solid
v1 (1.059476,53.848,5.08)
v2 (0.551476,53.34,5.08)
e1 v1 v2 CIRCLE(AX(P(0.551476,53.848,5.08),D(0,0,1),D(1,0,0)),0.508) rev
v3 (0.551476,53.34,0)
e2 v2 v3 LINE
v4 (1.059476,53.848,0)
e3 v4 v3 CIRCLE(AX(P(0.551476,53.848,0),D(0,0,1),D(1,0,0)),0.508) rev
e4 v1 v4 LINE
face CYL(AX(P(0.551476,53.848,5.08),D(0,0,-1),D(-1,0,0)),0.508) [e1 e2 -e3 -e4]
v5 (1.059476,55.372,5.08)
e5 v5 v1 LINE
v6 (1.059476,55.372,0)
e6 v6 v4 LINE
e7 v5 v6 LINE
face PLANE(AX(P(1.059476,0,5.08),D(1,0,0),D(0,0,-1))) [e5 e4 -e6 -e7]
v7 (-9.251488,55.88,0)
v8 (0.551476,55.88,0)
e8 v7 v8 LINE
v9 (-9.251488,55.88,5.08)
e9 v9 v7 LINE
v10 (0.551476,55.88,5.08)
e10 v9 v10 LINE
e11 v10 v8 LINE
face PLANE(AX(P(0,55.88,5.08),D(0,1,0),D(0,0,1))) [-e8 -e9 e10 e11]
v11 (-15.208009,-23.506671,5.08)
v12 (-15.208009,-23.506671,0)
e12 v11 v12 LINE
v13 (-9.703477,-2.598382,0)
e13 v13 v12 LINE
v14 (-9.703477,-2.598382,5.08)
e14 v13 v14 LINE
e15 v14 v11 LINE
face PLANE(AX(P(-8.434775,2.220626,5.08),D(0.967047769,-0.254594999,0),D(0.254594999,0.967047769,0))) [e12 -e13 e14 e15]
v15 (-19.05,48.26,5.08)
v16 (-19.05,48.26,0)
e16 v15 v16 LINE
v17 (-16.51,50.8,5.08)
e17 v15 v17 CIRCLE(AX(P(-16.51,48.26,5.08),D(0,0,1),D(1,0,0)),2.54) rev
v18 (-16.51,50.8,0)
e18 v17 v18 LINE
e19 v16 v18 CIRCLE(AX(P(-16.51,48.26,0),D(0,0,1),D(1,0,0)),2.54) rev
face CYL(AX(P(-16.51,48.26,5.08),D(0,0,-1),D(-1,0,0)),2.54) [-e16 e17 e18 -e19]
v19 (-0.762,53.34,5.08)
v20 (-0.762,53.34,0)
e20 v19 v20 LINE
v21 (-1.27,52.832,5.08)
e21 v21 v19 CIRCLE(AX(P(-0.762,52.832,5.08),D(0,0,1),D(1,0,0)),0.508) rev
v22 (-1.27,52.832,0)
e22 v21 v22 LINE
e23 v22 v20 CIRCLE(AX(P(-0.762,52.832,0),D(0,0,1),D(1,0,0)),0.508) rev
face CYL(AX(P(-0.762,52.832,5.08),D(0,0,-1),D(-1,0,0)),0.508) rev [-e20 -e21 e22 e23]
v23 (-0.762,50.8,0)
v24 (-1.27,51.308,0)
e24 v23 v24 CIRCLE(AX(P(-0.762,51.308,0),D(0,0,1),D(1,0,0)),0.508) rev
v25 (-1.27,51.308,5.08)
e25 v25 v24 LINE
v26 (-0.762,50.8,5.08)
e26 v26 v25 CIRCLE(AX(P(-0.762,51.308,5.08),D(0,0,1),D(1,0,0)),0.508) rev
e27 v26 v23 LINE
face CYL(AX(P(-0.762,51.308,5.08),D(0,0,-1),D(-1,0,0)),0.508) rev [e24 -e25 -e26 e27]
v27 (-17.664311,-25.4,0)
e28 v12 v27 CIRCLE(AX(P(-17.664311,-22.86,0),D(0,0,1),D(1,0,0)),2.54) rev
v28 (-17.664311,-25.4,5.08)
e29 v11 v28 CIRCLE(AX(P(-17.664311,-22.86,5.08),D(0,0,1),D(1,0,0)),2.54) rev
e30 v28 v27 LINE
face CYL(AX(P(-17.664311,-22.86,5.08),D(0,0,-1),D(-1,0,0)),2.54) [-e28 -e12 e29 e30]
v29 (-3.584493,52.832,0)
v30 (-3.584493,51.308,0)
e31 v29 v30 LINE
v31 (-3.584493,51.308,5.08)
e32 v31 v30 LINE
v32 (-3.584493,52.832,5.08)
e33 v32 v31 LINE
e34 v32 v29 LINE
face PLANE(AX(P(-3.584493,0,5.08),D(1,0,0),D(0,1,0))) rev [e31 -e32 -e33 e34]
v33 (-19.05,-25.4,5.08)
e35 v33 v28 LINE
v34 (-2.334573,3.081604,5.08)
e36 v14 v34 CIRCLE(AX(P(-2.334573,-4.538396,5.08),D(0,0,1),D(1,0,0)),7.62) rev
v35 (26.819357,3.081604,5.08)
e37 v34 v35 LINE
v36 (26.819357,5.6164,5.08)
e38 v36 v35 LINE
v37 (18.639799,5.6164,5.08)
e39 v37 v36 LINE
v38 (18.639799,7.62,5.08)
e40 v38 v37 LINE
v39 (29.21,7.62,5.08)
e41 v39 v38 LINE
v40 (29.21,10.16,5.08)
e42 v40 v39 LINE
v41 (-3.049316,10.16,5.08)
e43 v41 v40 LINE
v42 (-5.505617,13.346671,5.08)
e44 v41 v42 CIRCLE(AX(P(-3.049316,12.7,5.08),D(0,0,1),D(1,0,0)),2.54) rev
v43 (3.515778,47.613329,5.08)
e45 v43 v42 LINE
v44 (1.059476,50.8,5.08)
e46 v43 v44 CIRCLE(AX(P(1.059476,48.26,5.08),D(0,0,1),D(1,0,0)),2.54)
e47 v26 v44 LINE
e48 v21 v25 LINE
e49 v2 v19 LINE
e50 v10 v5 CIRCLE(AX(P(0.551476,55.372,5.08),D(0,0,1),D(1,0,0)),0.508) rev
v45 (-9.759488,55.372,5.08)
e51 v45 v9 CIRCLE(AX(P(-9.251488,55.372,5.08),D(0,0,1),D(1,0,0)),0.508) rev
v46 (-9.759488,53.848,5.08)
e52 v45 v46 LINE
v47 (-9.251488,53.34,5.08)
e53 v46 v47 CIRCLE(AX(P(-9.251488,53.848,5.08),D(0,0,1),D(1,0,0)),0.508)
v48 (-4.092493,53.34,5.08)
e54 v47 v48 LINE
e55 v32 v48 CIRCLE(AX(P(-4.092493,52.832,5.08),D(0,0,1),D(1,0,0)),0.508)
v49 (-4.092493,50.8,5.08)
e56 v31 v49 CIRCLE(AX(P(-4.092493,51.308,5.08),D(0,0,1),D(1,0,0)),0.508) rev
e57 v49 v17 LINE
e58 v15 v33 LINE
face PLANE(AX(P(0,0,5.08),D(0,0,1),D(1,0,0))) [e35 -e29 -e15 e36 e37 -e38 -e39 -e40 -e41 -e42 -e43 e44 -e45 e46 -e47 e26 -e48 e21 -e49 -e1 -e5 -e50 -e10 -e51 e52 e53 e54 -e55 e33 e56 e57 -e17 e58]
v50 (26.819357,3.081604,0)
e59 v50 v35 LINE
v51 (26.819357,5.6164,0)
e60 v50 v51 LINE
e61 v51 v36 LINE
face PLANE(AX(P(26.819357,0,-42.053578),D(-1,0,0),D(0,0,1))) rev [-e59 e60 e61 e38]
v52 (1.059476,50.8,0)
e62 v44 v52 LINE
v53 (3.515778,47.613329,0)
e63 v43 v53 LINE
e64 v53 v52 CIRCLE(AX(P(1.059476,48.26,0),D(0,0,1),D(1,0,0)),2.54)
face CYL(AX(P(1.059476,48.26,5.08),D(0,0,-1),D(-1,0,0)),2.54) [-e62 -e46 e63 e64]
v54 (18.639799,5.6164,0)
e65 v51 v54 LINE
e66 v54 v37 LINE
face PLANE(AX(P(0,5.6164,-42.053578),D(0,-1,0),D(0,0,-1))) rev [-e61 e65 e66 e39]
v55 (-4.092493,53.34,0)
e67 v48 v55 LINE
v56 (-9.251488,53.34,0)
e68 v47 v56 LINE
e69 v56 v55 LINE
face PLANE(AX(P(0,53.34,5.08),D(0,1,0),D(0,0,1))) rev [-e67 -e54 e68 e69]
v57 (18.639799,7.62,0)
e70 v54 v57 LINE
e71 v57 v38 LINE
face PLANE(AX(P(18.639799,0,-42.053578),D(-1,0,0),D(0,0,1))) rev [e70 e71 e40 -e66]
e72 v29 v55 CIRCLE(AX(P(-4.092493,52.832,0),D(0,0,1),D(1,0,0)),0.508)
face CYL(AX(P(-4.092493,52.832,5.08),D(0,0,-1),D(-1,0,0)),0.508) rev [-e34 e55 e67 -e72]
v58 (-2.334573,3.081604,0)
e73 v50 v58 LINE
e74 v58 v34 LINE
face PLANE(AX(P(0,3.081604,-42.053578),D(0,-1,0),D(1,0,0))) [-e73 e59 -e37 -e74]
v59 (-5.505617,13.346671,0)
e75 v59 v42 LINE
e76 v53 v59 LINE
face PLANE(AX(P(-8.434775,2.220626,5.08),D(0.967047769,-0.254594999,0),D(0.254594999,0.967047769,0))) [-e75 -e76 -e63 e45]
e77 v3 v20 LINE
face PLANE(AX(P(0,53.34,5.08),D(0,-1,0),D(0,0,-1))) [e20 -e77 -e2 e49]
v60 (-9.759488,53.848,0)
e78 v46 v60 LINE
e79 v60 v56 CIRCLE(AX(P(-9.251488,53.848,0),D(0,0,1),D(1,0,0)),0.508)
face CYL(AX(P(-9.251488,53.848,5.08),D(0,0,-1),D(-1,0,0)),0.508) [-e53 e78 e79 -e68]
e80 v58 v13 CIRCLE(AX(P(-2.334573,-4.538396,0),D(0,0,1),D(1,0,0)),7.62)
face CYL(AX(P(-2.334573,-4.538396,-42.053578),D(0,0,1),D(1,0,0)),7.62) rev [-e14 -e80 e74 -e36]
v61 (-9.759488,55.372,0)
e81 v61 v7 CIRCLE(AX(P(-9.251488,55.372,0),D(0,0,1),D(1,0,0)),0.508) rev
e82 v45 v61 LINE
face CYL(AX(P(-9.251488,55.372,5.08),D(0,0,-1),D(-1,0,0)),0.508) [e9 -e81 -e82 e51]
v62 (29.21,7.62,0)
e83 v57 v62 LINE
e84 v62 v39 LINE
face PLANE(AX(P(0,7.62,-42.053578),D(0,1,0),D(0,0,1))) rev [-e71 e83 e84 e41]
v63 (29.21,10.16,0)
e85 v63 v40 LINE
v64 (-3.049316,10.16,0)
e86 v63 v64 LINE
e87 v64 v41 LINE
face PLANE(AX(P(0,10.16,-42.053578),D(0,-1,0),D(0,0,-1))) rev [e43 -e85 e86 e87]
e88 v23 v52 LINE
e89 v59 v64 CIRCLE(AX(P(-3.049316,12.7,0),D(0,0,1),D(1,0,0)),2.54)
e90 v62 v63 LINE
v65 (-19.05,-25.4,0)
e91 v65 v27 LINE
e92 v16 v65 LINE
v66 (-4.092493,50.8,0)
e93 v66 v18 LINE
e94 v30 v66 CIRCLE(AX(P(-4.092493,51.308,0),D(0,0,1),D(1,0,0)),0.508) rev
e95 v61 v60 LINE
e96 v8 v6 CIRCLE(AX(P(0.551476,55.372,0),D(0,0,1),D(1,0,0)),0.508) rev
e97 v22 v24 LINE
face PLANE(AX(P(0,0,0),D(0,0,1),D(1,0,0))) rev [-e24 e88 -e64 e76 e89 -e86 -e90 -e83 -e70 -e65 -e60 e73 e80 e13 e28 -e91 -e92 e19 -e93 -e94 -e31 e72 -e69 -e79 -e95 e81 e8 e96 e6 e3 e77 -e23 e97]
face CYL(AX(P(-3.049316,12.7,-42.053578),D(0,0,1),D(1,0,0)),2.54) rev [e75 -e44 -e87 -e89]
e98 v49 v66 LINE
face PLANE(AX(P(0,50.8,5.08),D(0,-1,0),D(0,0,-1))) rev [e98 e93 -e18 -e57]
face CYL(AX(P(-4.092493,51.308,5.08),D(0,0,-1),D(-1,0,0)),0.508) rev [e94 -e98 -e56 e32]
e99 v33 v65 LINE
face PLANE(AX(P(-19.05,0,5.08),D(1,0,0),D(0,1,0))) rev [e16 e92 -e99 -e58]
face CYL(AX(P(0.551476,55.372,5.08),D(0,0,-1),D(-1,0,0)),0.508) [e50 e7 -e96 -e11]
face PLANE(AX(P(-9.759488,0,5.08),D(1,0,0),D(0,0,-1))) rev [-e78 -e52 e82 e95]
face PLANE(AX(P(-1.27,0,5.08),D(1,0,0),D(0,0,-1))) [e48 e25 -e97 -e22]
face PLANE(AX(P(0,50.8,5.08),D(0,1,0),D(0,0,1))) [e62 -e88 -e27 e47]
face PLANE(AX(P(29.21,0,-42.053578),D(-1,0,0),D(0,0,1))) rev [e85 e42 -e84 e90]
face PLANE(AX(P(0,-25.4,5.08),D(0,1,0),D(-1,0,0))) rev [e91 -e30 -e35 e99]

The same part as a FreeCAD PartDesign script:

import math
import FreeCAD as App
import Part
import Sketcher
from FreeCAD import Vector
Q = App.Units.Quantity

doc = App.newDocument("Part")
body = doc.addObject("PartDesign::Body", "Body")

# Sketch on XY plane
sketch1 = body.newObject("Sketcher::SketchObject", "Sketch")
sketch1.AttachmentSupport = (doc.getObject("XY_Plane"), [""])
sketch1.MapMode = "FlatFace"
sketch1.addGeometry([
    Part.LineSegment(Vector(0.551476, 55.88, 0), Vector(-9.251488, 55.88, 0)),  # 0
    Part.ArcOfCircle(Part.Circle(Vector(-9.251488, 55.372, 0), Vector(0, 0, 1), 0.508), math.radians(90), math.radians(180)),  # 1
    Part.LineSegment(Vector(-9.759488, 55.372, 0), Vector(-9.759488, 53.848, 0)),  # 2
    Part.ArcOfCircle(Part.Circle(Vector(-9.251488, 53.848, 0), Vector(0, 0, 1), 0.508), math.radians(180), math.radians(270)),  # 3
    Part.LineSegment(Vector(-9.251488, 53.34, 0), Vector(-4.092493, 53.34, 0)),  # 4
    Part.ArcOfCircle(Part.Circle(Vector(-4.092493, 52.832, 0), Vector(0, 0, 1), 0.508), math.radians(0), math.radians(90)),  # 5
    Part.LineSegment(Vector(-3.584493, 52.832, 0), Vector(-3.584493, 51.308, 0)),  # 6
    Part.ArcOfCircle(Part.Circle(Vector(-4.092493, 51.308, 0), Vector(0, 0, 1), 0.508), math.radians(-90), math.radians(0)),  # 7
    Part.LineSegment(Vector(-4.092493, 50.8, 0), Vector(-16.51, 50.8, 0)),  # 8
    Part.ArcOfCircle(Part.Circle(Vector(-16.51, 48.26, 0), Vector(0, 0, 1), 2.54), math.radians(90), math.radians(180)),  # 9
    Part.LineSegment(Vector(-19.05, 48.26, 0), Vector(-19.05, -25.4, 0)),  # 10
    Part.LineSegment(Vector(-19.05, -25.4, 0), Vector(-17.664311, -25.4, 0)),  # 11
    Part.ArcOfCircle(Part.Circle(Vector(-17.664311, -22.86, 0), Vector(0, 0, 1), 2.54), math.radians(-90), math.radians(-14.749588)),  # 12
    Part.LineSegment(Vector(-15.208009, -23.506671, 0), Vector(3.515778, 47.613329, 0)),  # 13
    Part.ArcOfCircle(Part.Circle(Vector(1.059476, 48.26, 0), Vector(0, 0, 1), 2.54), math.radians(-14.749588), math.radians(90)),  # 14
    Part.LineSegment(Vector(1.059476, 50.8, 0), Vector(-0.762, 50.8, 0)),  # 15
    Part.ArcOfCircle(Part.Circle(Vector(-0.762, 51.308, 0), Vector(0, 0, 1), 0.508), math.radians(180), math.radians(270)),  # 16
    Part.LineSegment(Vector(-1.27, 51.308, 0), Vector(-1.27, 52.832, 0)),  # 17
    Part.ArcOfCircle(Part.Circle(Vector(-0.762, 52.832, 0), Vector(0, 0, 1), 0.508), math.radians(90), math.radians(180)),  # 18
    Part.LineSegment(Vector(-0.762, 53.34, 0), Vector(0.551476, 53.34, 0)),  # 19
    Part.ArcOfCircle(Part.Circle(Vector(0.551476, 53.848, 0), Vector(0, 0, 1), 0.508), math.radians(-90), math.radians(0)),  # 20
    Part.LineSegment(Vector(1.059476, 53.848, 0), Vector(1.059476, 55.372, 0)),  # 21
    Part.ArcOfCircle(Part.Circle(Vector(0.551476, 55.372, 0), Vector(0, 0, 1), 0.508), math.radians(0), math.radians(90)),  # 22
], False)
sketch1.addConstraint([
    Sketcher.Constraint("Coincident", 0, 2, 1, 1),
    Sketcher.Constraint("Coincident", 1, 2, 2, 1),
    Sketcher.Constraint("Coincident", 2, 2, 3, 1),
    Sketcher.Constraint("Coincident", 3, 2, 4, 1),
    Sketcher.Constraint("Coincident", 4, 2, 5, 2),
    Sketcher.Constraint("Coincident", 5, 1, 6, 1),
    Sketcher.Constraint("Coincident", 6, 2, 7, 2),
    Sketcher.Constraint("Coincident", 7, 1, 8, 1),
    Sketcher.Constraint("Coincident", 8, 2, 9, 1),
    Sketcher.Constraint("Coincident", 9, 2, 10, 1),
    Sketcher.Constraint("Coincident", 10, 2, 11, 1),
    Sketcher.Constraint("Coincident", 11, 2, 12, 1),
    Sketcher.Constraint("Coincident", 12, 2, 13, 1),
    Sketcher.Constraint("Coincident", 13, 2, 14, 1),
    Sketcher.Constraint("Coincident", 14, 2, 15, 1),
    Sketcher.Constraint("Coincident", 15, 2, 16, 2),
    Sketcher.Constraint("Coincident", 16, 1, 17, 1),
    Sketcher.Constraint("Coincident", 17, 2, 18, 2),
    Sketcher.Constraint("Coincident", 18, 1, 19, 1),
    Sketcher.Constraint("Coincident", 19, 2, 20, 1),
    Sketcher.Constraint("Coincident", 20, 2, 21, 1),
    Sketcher.Constraint("Coincident", 21, 2, 22, 1),
    Sketcher.Constraint("Coincident", 22, 2, 0, 1),
    Sketcher.Constraint("Horizontal", 0),
    Sketcher.Constraint("Vertical", 2),
    Sketcher.Constraint("Horizontal", 4),
    Sketcher.Constraint("Vertical", 6),
    Sketcher.Constraint("Horizontal", 8),
    Sketcher.Constraint("Vertical", 10),
    Sketcher.Constraint("Horizontal", 11),
    Sketcher.Constraint("Horizontal", 15),
    Sketcher.Constraint("Vertical", 17),
    Sketcher.Constraint("Horizontal", 19),
    Sketcher.Constraint("Vertical", 21),
    Sketcher.Constraint("Radius", 9, Q("0.1 in")),
    Sketcher.Constraint("Radius", 12, Q("0.1 in")),
    Sketcher.Constraint("Radius", 14, Q("0.1 in")),
    Sketcher.Constraint("Radius", 1, Q("0.02 in")),
    Sketcher.Constraint("Radius", 3, Q("0.02 in")),
    Sketcher.Constraint("Radius", 5, Q("0.02 in")),
    Sketcher.Constraint("Radius", 7, Q("0.02 in")),
    Sketcher.Constraint("Radius", 16, Q("0.02 in")),
    Sketcher.Constraint("Radius", 18, Q("0.02 in")),
    Sketcher.Constraint("Radius", 20, Q("0.02 in")),
    Sketcher.Constraint("Radius", 22, Q("0.02 in")),
    Sketcher.Constraint("DistanceY", 10, 2, 10, 1, Q("2.9 in")),
    Sketcher.Constraint("DistanceY", -1, 1, 7, 1, Q("2 in")),
    Sketcher.Constraint("DistanceY", 10, 2, -1, 1, Q("1 in")),
    Sketcher.Constraint("DistanceY", -1, 1, 14, 2, Q("2 in")),
    Sketcher.Constraint("DistanceY", 2, 2, 2, 1, Q("0.06 in")),
    Sketcher.Constraint("DistanceY", 6, 2, 6, 1, Q("0.06 in")),
    Sketcher.Constraint("DistanceY", 17, 1, 17, 2, Q("0.06 in")),
    Sketcher.Constraint("DistanceY", 21, 1, 21, 2, Q("0.06 in")),
    Sketcher.Constraint("DistanceY", -1, 1, 0, 2, Q("2.2 in")),
    Sketcher.Constraint("DistanceY", -1, 1, 3, 2, Q("2.1 in")),
    Sketcher.Constraint("DistanceY", -1, 1, 18, 1, Q("2.1 in")),
    Sketcher.Constraint("DistanceY", 5, 3, 1, 2, Q("0.1 in")),
    Sketcher.Constraint("DistanceX", 9, 2, 8, 2, Q("0.1 in")),
    Sketcher.Constraint("DistanceX", 9, 3, -1, 1, Q("0.65 in")),
    Sketcher.Constraint("DistanceX", 16, 3, -1, 1, Q("0.03 in")),
    Sketcher.Constraint("DistanceY", -1, 1, 5, 1, Q("2.08 in")),
    Sketcher.Constraint("DistanceX", 15, 2, -1, 1, Q("0.03 in")),
    Sketcher.Constraint("DistanceY", -1, 1, 16, 1, Q("2.02 in")),
    Sketcher.Constraint("DistanceX", 18, 1, -1, 1, Q("0.03 in")),
    Sketcher.Constraint("DistanceY", -1, 1, 20, 2, Q("2.12 in")),
    Sketcher.Constraint("DistanceX", 20, 3, 14, 3, Q("0.02 in")),
    Sketcher.Constraint("DistanceX", 1, 2, 0, 2, Q("0.02 in")),
    Sketcher.Constraint("DistanceX", 2, 2, 3, 2, Q("0.02 in")),
    Sketcher.Constraint("DistanceX", 4, 2, 5, 1, Q("0.02 in")),
    Sketcher.Constraint("DistanceX", 7, 1, 6, 2, Q("0.02 in")),
    Sketcher.Constraint("DistanceX", 20, 3, 14, 2, Q("0.02 in")),
    Sketcher.Constraint("DistanceX", 19, 2, 20, 2, Q("0.02 in")),
    Sketcher.Constraint("DistanceX", 22, 2, 21, 2, Q("0.02 in")),
    Sketcher.Constraint("DistanceX", 11, 1, 11, 2, 1.385689),
    Sketcher.Constraint("DistanceX", 12, 3, 12, 2, 2.456301),
    Sketcher.Constraint("DistanceX", 11, 2, 12, 2, 2.456301),
    Sketcher.Constraint("DistanceX", 14, 3, 13, 2, 2.456301),
    Sketcher.Constraint("Distance", 13, 73.54342),
    Sketcher.Constraint("DistanceX", 0, 2, 0, 1, 9.802964),
    Sketcher.Constraint("DistanceX", 4, 1, 4, 2, 5.158995),
])
pad1 = body.newObject("PartDesign::Pad", "Pad")
pad1.Profile = sketch1
pad1.Length = Q("0.2 in")

# Sketch on XY plane
sketch2 = body.newObject("Sketcher::SketchObject", "Sketch001")
sketch2.AttachmentSupport = (doc.getObject("XY_Plane"), [""])
sketch2.MapMode = "FlatFace"
sketch2.AttachmentOffset = App.Placement(Vector(0, 0, 0.2 * 25.4), App.Rotation())
sketch2.addGeometry([
    Part.LineSegment(Vector(29.21, 10.16, 0), Vector(-3.049316, 10.16, 0)),  # 0
    Part.ArcOfCircle(Part.Circle(Vector(-3.049316, 12.7, 0), Vector(0, 0, 1), 2.54), math.radians(165.250412), math.radians(270)),  # 1
    Part.LineSegment(Vector(-5.505617, 13.346671, 0), Vector(-9.703477, -2.598382, 0)),  # 2
    Part.ArcOfCircle(Part.Circle(Vector(-2.334573, -4.538396, 0), Vector(0, 0, 1), 7.62), math.radians(90), math.radians(165.250412)),  # 3
    Part.LineSegment(Vector(-2.334573, 3.081604, 0), Vector(26.819357, 3.081604, 0)),  # 4
    Part.LineSegment(Vector(26.819357, 3.081604, 0), Vector(26.819357, 5.6164, 0)),  # 5
    Part.LineSegment(Vector(26.819357, 5.6164, 0), Vector(18.639799, 5.6164, 0)),  # 6
    Part.LineSegment(Vector(18.639799, 5.6164, 0), Vector(18.639799, 7.62, 0)),  # 7
    Part.LineSegment(Vector(18.639799, 7.62, 0), Vector(29.21, 7.62, 0)),  # 8
    Part.LineSegment(Vector(29.21, 7.62, 0), Vector(29.21, 10.16, 0)),  # 9
], False)
sketch2.addConstraint([
    Sketcher.Constraint("Coincident", 0, 2, 1, 2),
    Sketcher.Constraint("Coincident", 1, 1, 2, 1),
    Sketcher.Constraint("Coincident", 2, 2, 3, 2),
    Sketcher.Constraint("Coincident", 3, 1, 4, 1),
    Sketcher.Constraint("Coincident", 4, 2, 5, 1),
    Sketcher.Constraint("Coincident", 5, 2, 6, 1),
    Sketcher.Constraint("Coincident", 6, 2, 7, 1),
    Sketcher.Constraint("Coincident", 7, 2, 8, 1),
    Sketcher.Constraint("Coincident", 8, 2, 9, 1),
    Sketcher.Constraint("Coincident", 9, 2, 0, 1),
    Sketcher.Constraint("Horizontal", 0),
    Sketcher.Constraint("Horizontal", 4),
    Sketcher.Constraint("Vertical", 5),
    Sketcher.Constraint("Horizontal", 6),
    Sketcher.Constraint("Vertical", 7),
    Sketcher.Constraint("Horizontal", 8),
    Sketcher.Constraint("Vertical", 9),
    Sketcher.Constraint("Radius", 1, Q("0.1 in")),
    Sketcher.Constraint("Radius", 3, Q("0.3 in")),
    Sketcher.Constraint("DistanceY", 9, 1, 9, 2, Q("0.1 in")),
    Sketcher.Constraint("DistanceY", -1, 1, 1, 3, Q("0.5 in")),
    Sketcher.Constraint("DistanceX", -1, 1, 8, 2, Q("1.15 in")),
    Sketcher.Constraint("DistanceX", 8, 1, 8, 2, 10.570201),
    Sketcher.Constraint("DistanceY", 7, 1, 7, 2, 2.0036),
    Sketcher.Constraint("DistanceX", 4, 1, 4, 2, 29.15393),
    Sketcher.Constraint("DistanceX", 6, 2, 6, 1, 8.179558),
    Sketcher.Constraint("DistanceX", 1, 1, 1, 3, 2.456301),
    Sketcher.Constraint("DistanceX", 1, 1, 0, 2, 2.456301),
    Sketcher.Constraint("DistanceX", 0, 2, 0, 1, 32.259316),
    Sketcher.Constraint("DistanceY", 5, 1, 5, 2, 2.534795),
    Sketcher.Constraint("DistanceY", 2, 2, -1, 1, 2.598382),
    Sketcher.Constraint("DistanceX", 2, 2, 0, 2, 6.654161),
])
pad2 = body.newObject("PartDesign::Pad", "Pad001")
pad2.Profile = sketch2
pad2.Length = Q("0.2 in")
pad2.Reversed = True

doc.recompute()
